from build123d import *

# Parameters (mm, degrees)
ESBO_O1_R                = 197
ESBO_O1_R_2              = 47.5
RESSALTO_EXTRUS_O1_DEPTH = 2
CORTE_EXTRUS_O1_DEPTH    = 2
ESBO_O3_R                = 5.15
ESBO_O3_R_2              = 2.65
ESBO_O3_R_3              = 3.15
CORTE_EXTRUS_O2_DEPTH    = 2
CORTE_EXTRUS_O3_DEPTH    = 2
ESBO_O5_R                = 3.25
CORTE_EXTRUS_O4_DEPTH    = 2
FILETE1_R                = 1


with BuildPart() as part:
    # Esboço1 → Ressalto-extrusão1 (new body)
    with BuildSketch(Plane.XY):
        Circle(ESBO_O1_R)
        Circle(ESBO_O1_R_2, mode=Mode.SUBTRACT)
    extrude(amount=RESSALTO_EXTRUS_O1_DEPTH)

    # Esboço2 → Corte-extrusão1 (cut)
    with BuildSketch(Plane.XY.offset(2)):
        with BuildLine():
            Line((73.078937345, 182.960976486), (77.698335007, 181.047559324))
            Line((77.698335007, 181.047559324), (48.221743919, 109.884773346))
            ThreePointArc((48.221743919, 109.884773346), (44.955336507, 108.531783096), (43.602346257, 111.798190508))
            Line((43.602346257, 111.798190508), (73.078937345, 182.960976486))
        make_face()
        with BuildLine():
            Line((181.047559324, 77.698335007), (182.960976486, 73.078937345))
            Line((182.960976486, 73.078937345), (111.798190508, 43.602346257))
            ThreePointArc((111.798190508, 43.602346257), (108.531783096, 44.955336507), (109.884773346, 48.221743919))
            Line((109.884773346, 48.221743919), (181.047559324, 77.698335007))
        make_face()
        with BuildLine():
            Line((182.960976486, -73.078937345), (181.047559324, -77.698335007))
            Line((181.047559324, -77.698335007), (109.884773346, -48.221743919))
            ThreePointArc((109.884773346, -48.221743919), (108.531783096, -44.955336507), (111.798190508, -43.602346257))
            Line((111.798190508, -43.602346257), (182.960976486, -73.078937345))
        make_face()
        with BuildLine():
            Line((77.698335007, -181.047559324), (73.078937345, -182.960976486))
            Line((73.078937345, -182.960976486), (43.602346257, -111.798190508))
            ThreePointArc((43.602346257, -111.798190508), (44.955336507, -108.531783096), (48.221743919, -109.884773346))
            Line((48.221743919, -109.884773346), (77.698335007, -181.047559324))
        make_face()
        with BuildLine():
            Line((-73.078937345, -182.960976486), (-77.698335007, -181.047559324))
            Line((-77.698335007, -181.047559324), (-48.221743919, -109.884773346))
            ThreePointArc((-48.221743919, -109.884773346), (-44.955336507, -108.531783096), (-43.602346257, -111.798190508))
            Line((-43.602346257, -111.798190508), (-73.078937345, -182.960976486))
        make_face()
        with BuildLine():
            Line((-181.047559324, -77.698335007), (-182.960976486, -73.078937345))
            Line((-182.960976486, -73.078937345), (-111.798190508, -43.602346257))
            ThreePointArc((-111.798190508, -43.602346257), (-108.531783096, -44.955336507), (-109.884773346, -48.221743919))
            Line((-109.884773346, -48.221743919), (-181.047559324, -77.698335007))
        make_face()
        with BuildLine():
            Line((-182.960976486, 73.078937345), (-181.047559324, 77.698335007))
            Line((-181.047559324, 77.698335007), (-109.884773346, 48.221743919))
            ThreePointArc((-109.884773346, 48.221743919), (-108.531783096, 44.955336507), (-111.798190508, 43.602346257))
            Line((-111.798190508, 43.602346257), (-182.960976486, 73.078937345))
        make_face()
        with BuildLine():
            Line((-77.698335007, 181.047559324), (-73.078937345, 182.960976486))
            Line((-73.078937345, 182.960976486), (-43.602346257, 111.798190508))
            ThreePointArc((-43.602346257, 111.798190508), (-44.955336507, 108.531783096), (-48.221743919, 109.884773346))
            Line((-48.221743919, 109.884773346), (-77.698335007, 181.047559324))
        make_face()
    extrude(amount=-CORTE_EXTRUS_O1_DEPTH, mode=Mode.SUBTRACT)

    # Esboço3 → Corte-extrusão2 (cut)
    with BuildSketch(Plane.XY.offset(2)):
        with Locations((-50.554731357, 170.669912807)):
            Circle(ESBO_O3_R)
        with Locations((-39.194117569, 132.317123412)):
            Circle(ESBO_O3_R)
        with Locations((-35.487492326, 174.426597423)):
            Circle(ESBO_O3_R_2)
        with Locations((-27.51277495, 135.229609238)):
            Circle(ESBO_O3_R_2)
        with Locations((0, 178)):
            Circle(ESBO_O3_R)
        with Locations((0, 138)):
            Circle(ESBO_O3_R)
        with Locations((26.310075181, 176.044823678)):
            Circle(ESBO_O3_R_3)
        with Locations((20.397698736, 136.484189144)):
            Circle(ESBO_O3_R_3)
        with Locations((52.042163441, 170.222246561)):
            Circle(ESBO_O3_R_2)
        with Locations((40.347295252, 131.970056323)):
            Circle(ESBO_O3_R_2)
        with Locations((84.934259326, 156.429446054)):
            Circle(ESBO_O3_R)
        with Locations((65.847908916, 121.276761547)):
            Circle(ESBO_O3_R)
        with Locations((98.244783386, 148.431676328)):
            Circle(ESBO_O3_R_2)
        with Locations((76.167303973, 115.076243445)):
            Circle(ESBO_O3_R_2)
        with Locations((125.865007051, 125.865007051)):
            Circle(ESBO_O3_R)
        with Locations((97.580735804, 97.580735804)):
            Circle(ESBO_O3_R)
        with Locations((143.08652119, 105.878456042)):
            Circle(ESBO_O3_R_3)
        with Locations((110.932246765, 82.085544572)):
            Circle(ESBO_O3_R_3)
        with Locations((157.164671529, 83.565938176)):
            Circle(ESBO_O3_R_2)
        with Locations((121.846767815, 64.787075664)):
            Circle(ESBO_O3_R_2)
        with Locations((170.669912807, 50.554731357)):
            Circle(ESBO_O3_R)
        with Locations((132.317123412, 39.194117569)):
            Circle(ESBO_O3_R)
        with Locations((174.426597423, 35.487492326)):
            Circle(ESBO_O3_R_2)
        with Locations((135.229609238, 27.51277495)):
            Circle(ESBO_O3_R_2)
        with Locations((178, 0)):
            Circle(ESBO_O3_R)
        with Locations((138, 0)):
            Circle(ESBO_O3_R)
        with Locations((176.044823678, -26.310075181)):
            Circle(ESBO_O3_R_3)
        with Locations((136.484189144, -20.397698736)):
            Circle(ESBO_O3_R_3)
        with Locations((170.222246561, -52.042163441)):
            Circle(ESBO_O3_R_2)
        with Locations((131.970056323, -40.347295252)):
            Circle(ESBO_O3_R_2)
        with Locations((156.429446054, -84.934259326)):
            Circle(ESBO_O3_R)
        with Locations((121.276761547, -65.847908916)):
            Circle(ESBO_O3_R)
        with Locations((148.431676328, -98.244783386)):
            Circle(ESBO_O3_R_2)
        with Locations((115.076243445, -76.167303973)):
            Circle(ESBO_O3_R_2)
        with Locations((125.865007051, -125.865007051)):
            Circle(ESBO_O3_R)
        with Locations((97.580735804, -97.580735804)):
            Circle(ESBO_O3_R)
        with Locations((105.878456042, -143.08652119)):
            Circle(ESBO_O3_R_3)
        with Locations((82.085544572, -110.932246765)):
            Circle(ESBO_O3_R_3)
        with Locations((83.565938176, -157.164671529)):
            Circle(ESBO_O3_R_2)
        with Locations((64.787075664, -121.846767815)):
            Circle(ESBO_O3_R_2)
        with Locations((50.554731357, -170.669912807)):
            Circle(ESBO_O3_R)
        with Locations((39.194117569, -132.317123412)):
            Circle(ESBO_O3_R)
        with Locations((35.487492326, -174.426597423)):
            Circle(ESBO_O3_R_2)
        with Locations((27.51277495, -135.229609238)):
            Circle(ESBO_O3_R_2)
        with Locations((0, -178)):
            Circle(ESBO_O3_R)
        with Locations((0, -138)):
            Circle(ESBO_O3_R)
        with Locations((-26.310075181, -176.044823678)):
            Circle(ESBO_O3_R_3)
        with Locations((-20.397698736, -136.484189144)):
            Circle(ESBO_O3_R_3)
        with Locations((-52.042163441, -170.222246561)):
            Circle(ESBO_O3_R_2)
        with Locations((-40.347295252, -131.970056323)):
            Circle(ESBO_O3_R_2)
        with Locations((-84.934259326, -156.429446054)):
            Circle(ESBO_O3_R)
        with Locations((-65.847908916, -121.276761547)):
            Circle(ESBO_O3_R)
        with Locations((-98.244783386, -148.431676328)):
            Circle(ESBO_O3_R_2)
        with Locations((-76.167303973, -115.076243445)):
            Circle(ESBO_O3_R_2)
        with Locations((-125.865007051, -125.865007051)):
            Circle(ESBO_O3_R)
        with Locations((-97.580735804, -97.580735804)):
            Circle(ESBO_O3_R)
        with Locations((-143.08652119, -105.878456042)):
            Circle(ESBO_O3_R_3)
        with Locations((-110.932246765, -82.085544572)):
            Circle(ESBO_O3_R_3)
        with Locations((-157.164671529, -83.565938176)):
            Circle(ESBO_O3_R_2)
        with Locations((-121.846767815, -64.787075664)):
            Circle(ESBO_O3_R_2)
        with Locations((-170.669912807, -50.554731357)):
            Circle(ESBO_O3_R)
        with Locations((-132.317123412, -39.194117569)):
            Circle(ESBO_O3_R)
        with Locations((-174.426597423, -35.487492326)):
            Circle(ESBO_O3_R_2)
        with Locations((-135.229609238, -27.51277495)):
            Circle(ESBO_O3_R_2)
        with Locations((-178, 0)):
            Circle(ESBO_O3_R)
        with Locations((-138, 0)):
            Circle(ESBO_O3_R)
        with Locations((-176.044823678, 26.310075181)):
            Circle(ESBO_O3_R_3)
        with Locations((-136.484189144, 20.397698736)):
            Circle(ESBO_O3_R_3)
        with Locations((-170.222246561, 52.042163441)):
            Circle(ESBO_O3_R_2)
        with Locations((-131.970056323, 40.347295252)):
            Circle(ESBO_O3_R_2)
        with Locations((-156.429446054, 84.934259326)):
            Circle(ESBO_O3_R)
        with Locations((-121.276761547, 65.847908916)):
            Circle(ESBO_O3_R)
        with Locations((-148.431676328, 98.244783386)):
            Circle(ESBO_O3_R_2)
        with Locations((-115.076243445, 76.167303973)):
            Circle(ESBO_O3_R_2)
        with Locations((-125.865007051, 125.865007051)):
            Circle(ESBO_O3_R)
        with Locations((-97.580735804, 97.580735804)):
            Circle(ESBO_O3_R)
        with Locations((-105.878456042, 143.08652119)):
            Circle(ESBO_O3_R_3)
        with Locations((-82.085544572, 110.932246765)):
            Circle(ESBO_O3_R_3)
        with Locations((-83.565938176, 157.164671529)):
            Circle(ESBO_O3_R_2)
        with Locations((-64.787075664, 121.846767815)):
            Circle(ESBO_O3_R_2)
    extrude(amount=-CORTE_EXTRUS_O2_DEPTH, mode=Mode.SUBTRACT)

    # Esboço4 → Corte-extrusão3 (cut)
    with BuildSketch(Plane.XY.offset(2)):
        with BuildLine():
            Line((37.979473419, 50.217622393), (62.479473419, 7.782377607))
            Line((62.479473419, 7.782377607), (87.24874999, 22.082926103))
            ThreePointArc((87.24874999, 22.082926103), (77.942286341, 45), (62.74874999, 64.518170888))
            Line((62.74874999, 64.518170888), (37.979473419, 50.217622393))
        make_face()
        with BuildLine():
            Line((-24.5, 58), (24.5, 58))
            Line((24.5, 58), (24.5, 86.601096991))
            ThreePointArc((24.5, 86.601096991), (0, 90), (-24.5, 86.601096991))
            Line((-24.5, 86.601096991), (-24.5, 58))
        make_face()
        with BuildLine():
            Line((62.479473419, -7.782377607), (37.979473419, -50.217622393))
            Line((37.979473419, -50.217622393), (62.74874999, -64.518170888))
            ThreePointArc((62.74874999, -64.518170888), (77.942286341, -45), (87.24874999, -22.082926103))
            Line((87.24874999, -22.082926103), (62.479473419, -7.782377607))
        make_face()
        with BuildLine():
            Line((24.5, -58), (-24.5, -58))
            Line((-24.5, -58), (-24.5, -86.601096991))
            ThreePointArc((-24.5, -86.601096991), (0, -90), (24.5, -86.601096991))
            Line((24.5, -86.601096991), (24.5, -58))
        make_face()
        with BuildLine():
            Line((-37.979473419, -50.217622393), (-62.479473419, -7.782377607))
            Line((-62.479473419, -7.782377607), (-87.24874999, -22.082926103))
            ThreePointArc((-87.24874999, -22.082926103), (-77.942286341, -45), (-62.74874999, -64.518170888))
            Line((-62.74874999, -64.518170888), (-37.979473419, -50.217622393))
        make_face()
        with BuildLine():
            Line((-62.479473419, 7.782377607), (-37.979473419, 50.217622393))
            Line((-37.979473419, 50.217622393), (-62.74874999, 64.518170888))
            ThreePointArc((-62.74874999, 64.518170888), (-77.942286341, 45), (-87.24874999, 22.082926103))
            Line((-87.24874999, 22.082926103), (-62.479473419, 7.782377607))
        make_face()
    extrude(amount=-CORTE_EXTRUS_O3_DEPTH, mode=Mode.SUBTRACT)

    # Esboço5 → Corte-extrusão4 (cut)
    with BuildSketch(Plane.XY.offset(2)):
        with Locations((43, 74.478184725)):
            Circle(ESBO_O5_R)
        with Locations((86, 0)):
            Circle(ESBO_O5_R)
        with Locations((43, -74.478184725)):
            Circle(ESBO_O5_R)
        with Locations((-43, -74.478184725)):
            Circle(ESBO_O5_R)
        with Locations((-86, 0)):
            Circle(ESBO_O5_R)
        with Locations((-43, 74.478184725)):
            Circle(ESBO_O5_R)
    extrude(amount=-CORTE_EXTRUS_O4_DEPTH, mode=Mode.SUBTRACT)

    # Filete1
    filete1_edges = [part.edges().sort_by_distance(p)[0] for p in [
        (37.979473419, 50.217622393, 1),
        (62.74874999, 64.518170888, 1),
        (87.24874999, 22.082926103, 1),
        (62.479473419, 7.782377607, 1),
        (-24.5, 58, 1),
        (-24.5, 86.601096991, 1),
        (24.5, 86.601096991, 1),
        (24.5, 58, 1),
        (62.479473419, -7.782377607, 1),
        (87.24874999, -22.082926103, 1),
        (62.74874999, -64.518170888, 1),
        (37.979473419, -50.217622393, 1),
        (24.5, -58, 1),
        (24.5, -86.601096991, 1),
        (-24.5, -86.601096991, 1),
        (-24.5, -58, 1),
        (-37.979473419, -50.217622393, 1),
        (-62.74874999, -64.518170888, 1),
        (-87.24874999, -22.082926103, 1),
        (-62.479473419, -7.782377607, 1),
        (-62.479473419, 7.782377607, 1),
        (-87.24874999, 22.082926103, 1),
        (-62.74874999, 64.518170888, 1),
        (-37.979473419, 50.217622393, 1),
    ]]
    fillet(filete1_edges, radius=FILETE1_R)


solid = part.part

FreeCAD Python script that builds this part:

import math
import FreeCAD as App
import Part
import Sketcher

V = App.Vector
Q = App.Units.Quantity


def edges_at(feature, points):
    """Names of the edges that pass closest to the given points."""
    edges = feature.Shape.Edges
    near = lambda p: min(range(len(edges)), key=lambda i: edges[i].distToShape(Part.Vertex(*p))[0])
    return sorted({f"Edge{near(p) + 1}" for p in points})

doc = App.newDocument("Part")
body = doc.addObject("PartDesign::Body", "Body")

sketch1 = doc.addObject("Sketcher::SketchObject", "Sketch")
body.addObject(sketch1)
sketch1.AttachmentSupport = (doc.XY_Plane, [""])
sketch1.MapMode = "FlatFace"
sketch1.addGeometry([
    Part.Circle(V(0, 0, 0), V(0, 0, 1), 197),
    Part.Circle(V(0, 0, 0), V(0, 0, 1), 47.5),
], False)
sketch1.addConstraint([
    Sketcher.Constraint("Coincident", 0, 3, -1, 1),
    Sketcher.Constraint("Coincident", 1, 3, -1, 1),
    Sketcher.Constraint("Diameter", 0, 394.0),
    Sketcher.Constraint("Diameter", 1, 95.0),
])
pad1 = doc.addObject("PartDesign::Pad", "Pad")
body.addObject(pad1)
pad1.Profile = sketch1
pad1.Length = 2

sketch2 = doc.addObject("Sketcher::SketchObject", "Sketch001")
body.addObject(sketch2)
sketch2.AttachmentSupport = (doc.XY_Plane, [""])
sketch2.MapMode = "FlatFace"
sketch2.AttachmentOffset = App.Placement(V(0, 0, 2), App.Rotation())
sketch2.addGeometry([
    Part.LineSegment(V(77.698335, 181.047559, 0), V(73.078937, 182.960976, 0)),
    Part.LineSegment(V(73.078937, 182.960976, 0), V(43.602346, 111.798191, 0)),
    Part.ArcOfCircle(Part.Circle(V(45.912045, 110.841482, 0), V(0, 0, 1), 2.5), math.radians(157.5), math.radians(337.5)),
    Part.LineSegment(V(48.221744, 109.884773, 0), V(77.698335, 181.047559, 0)),
    Part.LineSegment(V(182.960976, 73.078937, 0), V(181.047559, 77.698335, 0)),
    Part.LineSegment(V(181.047559, 77.698335, 0), V(109.884773, 48.221744, 0)),
    Part.ArcOfCircle(Part.Circle(V(110.841482, 45.912045, 0), V(0, 0, 1), 2.5), math.radians(112.5), math.radians(292.5)),
    Part.LineSegment(V(111.798191, 43.602346, 0), V(182.960976, 73.078937, 0)),
    Part.LineSegment(V(181.047559, -77.698335, 0), V(182.960976, -73.078937, 0)),
    Part.LineSegment(V(182.960976, -73.078937, 0), V(111.798191, -43.602346, 0)),
    Part.ArcOfCircle(Part.Circle(V(110.841482, -45.912045, 0), V(0, 0, 1), 2.5), math.radians(67.5), math.radians(247.5)),
    Part.LineSegment(V(109.884773, -48.221744, 0), V(181.047559, -77.698335, 0)),
    Part.LineSegment(V(73.078937, -182.960976, 0), V(77.698335, -181.047559, 0)),
    Part.LineSegment(V(77.698335, -181.047559, 0), V(48.221744, -109.884773, 0)),
    Part.ArcOfCircle(Part.Circle(V(45.912045, -110.841482, 0), V(0, 0, 1), 2.5), math.radians(22.5), math.radians(202.5)),
    Part.LineSegment(V(43.602346, -111.798191, 0), V(73.078937, -182.960976, 0)),
    Part.LineSegment(V(-77.698335, -181.047559, 0), V(-73.078937, -182.960976, 0)),
    Part.LineSegment(V(-73.078937, -182.960976, 0), V(-43.602346, -111.798191, 0)),
    Part.ArcOfCircle(Part.Circle(V(-45.912045, -110.841482, 0), V(0, 0, 1), 2.5), math.radians(-22.5), math.radians(157.5)),
    Part.LineSegment(V(-48.221744, -109.884773, 0), V(-77.698335, -181.047559, 0)),
    Part.LineSegment(V(-182.960976, -73.078937, 0), V(-181.047559, -77.698335, 0)),
    Part.LineSegment(V(-181.047559, -77.698335, 0), V(-109.884773, -48.221744, 0)),
    Part.ArcOfCircle(Part.Circle(V(-110.841482, -45.912045, 0), V(0, 0, 1), 2.5), math.radians(-67.5), math.radians(112.5)),
    Part.LineSegment(V(-111.798191, -43.602346, 0), V(-182.960976, -73.078937, 0)),
    Part.LineSegment(V(-181.047559, 77.698335, 0), V(-182.960976, 73.078937, 0)),
    Part.LineSegment(V(-182.960976, 73.078937, 0), V(-111.798191, 43.602346, 0)),
    Part.ArcOfCircle(Part.Circle(V(-110.841482, 45.912045, 0), V(0, 0, 1), 2.5), math.radians(-112.5), math.radians(67.5)),
    Part.LineSegment(V(-109.884773, 48.221744, 0), V(-181.047559, 77.698335, 0)),
    Part.LineSegment(V(-73.078937, 182.960976, 0), V(-77.698335, 181.047559, 0)),
    Part.LineSegment(V(-77.698335, 181.047559, 0), V(-48.221744, 109.884773, 0)),
    Part.ArcOfCircle(Part.Circle(V(-45.912045, 110.841482, 0), V(0, 0, 1), 2.5), math.radians(-157.5), math.radians(22.5)),
    Part.LineSegment(V(-43.602346, 111.798191, 0), V(-73.078937, 182.960976, 0)),
], False)
sketch2.addConstraint([
    Sketcher.Constraint("Coincident", 0, 2, 1, 1),
    Sketcher.Constraint("Tangent", 1, 2, 2, 1),
    Sketcher.Constraint("Tangent", 2, 2, 3, 1),
    Sketcher.Constraint("Coincident", 3, 2, 0, 1),
    Sketcher.Constraint("Coincident", 4, 2, 5, 1),
    Sketcher.Constraint("Tangent", 5, 2, 6, 1),
    Sketcher.Constraint("Tangent", 6, 2, 7, 1),
    Sketcher.Constraint("Coincident", 7, 2, 4, 1),
    Sketcher.Constraint("Coincident", 8, 2, 9, 1),
    Sketcher.Constraint("Tangent", 9, 2, 10, 1),
    Sketcher.Constraint("Tangent", 10, 2, 11, 1),
    Sketcher.Constraint("Coincident", 11, 2, 8, 1),
    Sketcher.Constraint("Coincident", 12, 2, 13, 1),
    Sketcher.Constraint("Tangent", 13, 2, 14, 1),
    Sketcher.Constraint("Tangent", 14, 2, 15, 1),
    Sketcher.Constraint("Coincident", 15, 2, 12, 1),
    Sketcher.Constraint("Coincident", 16, 2, 17, 1),
    Sketcher.Constraint("Tangent", 17, 2, 18, 1),
    Sketcher.Constraint("Tangent", 18, 2, 19, 1),
    Sketcher.Constraint("Coincident", 19, 2, 16, 1),
    Sketcher.Constraint("Coincident", 20, 2, 21, 1),
    Sketcher.Constraint("Tangent", 21, 2, 22, 1),
    Sketcher.Constraint("Tangent", 22, 2, 23, 1),
    Sketcher.Constraint("Coincident", 23, 2, 20, 1),
    Sketcher.Constraint("Coincident", 24, 2, 25, 1),
    Sketcher.Constraint("Tangent", 25, 2, 26, 1),
    Sketcher.Constraint("Tangent", 26, 2, 27, 1),
    Sketcher.Constraint("Coincident", 27, 2, 24, 1),
    Sketcher.Constraint("Coincident", 28, 2, 29, 1),
    Sketcher.Constraint("Tangent", 29, 2, 30, 1),
    Sketcher.Constraint("Tangent", 30, 2, 31, 1),
    Sketcher.Constraint("Coincident", 31, 2, 28, 1),
    Sketcher.Constraint("Equal", 2, 6),
    Sketcher.Constraint("Equal", 6, 10),
    Sketcher.Constraint("Equal", 10, 14),
    Sketcher.Constraint("Equal", 14, 18),
    Sketcher.Constraint("Equal", 18, 22),
    Sketcher.Constraint("Equal", 22, 26),
    Sketcher.Constraint("Equal", 26, 30),
    Sketcher.Constraint("Symmetric", 2, 3, 18, 3, -1, 1),
    Sketcher.Constraint("Symmetric", 6, 3, 22, 3, -1, 1),
    Sketcher.Constraint("Symmetric", 10, 3, 26, 3, -1, 1),
    Sketcher.Constraint("Symmetric", 14, 3, 30, 3, -1, 1),
    Sketcher.Constraint("Symmetric", 0, 2, 16, 2, -1, 1),
    Sketcher.Constraint("Symmetric", 3, 2, 19, 2, -1, 1),
    Sketcher.Constraint("Symmetric", 4, 2, 20, 2, -1, 1),
    Sketcher.Constraint("Symmetric", 7, 2, 23, 2, -1, 1),
    Sketcher.Constraint("Symmetric", 8, 2, 24, 2, -1, 1),
    Sketcher.Constraint("Symmetric", 11, 2, 27, 2, -1, 1),
    Sketcher.Constraint("Symmetric", 12, 2, 28, 2, -1, 1),
    Sketcher.Constraint("Symmetric", 15, 2, 31, 2, -1, 1),
    Sketcher.Constraint("Symmetric", 14, 3, 18, 3, -2),
    Sketcher.Constraint("Symmetric", 10, 3, 22, 3, -2),
    Sketcher.Constraint("Symmetric", 15, 2, 16, 2, -2),
    Sketcher.Constraint("Symmetric", 12, 2, 19, 2, -2),
    Sketcher.Constraint("Symmetric", 11, 2, 20, 2, -2),
    Sketcher.Constraint("Symmetric", 8, 2, 23, 2, -2),
    Sketcher.Constraint("Perpendicular", 0, 1),
    Sketcher.Constraint("Parallel", 1, 3),
    Sketcher.Constraint("Perpendicular", 4, 5),
    Sketcher.Constraint("Parallel", 5, 7),
    Sketcher.Constraint("Parallel", 3, 8),
    Sketcher.Constraint("Equal", 3, 5),
    Sketcher.Constraint("Radius", 2, 2.5),
    Sketcher.Constraint("Angle", 0, Q("157.5 deg")),
    Sketcher.Constraint("DistanceY", -1, 1, 2, 3, 110.841482),
    Sketcher.Constraint("DistanceX", -1, 1, 6, 3, 110.841482),
    Sketcher.Constraint("DistanceY", -1, 1, 3, 2, 181.047559),
    Sketcher.Constraint("DistanceY", 10, 3, 6, 3, 91.82409),
    Sketcher.Constraint("DistanceX", 18, 3, 14, 3, 91.82409),
])
pocket1 = doc.addObject("PartDesign::Pocket", "Pocket")
body.addObject(pocket1)
pocket1.Profile = sketch2
pocket1.Length = 2

sketch3 = doc.addObject("Sketcher::SketchObject", "Sketch002")
body.addObject(sketch3)
sketch3.AttachmentSupport = (doc.XY_Plane, [""])
sketch3.MapMode = "FlatFace"
sketch3.AttachmentOffset = App.Placement(V(0, 0, 2), App.Rotation())
sketch3.addGeometry([
    Part.Circle(V(-50.554731, 170.669913, 0), V(0, 0, 1), 5.15),
    Part.Circle(V(-39.194118, 132.317123, 0), V(0, 0, 1), 5.15),
    Part.Circle(V(-35.487492, 174.426597, 0), V(0, 0, 1), 2.65),
    Part.Circle(V(-27.512775, 135.229609, 0), V(0, 0, 1), 2.65),
    Part.Circle(V(0, 178, 0), V(0, 0, 1), 5.15),
    Part.Circle(V(0, 138, 0), V(0, 0, 1), 5.15),
    Part.Circle(V(26.310075, 176.044824, 0), V(0, 0, 1), 3.15),
    Part.Circle(V(20.397699, 136.484189, 0), V(0, 0, 1), 3.15),
    Part.Circle(V(52.042163, 170.222247, 0), V(0, 0, 1), 2.65),
    Part.Circle(V(40.347295, 131.970056, 0), V(0, 0, 1), 2.65),
    Part.Circle(V(84.934259, 156.429446, 0), V(0, 0, 1), 5.15),
    Part.Circle(V(65.847909, 121.276762, 0), V(0, 0, 1), 5.15),
    Part.Circle(V(98.244783, 148.431676, 0), V(0, 0, 1), 2.65),
    Part.Circle(V(76.167304, 115.076243, 0), V(0, 0, 1), 2.65),
    Part.Circle(V(125.865007, 125.865007, 0), V(0, 0, 1), 5.15),
    Part.Circle(V(97.580736, 97.580736, 0), V(0, 0, 1), 5.15),
    Part.Circle(V(143.086521, 105.878456, 0), V(0, 0, 1), 3.15),
    Part.Circle(V(110.932247, 82.085545, 0), V(0, 0, 1), 3.15),
    Part.Circle(V(157.164672, 83.565938, 0), V(0, 0, 1), 2.65),
    Part.Circle(V(121.846768, 64.787076, 0), V(0, 0, 1), 2.65),
    Part.Circle(V(170.669913, 50.554731, 0), V(0, 0, 1), 5.15),
    Part.Circle(V(132.317123, 39.194118, 0), V(0, 0, 1), 5.15),
    Part.Circle(V(174.426597, 35.487492, 0), V(0, 0, 1), 2.65),
    Part.Circle(V(135.229609, 27.512775, 0), V(0, 0, 1), 2.65),
    Part.Circle(V(178, 0, 0), V(0, 0, 1), 5.15),
    Part.Circle(V(138, 0, 0), V(0, 0, 1), 5.15),
    Part.Circle(V(176.044824, -26.310075, 0), V(0, 0, 1), 3.15),
    Part.Circle(V(136.484189, -20.397699, 0), V(0, 0, 1), 3.15),
    Part.Circle(V(170.222247, -52.042163, 0), V(0, 0, 1), 2.65),
    Part.Circle(V(131.970056, -40.347295, 0), V(0, 0, 1), 2.65),
    Part.Circle(V(156.429446, -84.934259, 0), V(0, 0, 1), 5.15),
    Part.Circle(V(121.276762, -65.847909, 0), V(0, 0, 1), 5.15),
    Part.Circle(V(148.431676, -98.244783, 0), V(0, 0, 1), 2.65),
    Part.Circle(V(115.076243, -76.167304, 0), V(0, 0, 1), 2.65),
    Part.Circle(V(125.865007, -125.865007, 0), V(0, 0, 1), 5.15),
    Part.Circle(V(97.580736, -97.580736, 0), V(0, 0, 1), 5.15),
    Part.Circle(V(105.878456, -143.086521, 0), V(0, 0, 1), 3.15),
    Part.Circle(V(82.085545, -110.932247, 0), V(0, 0, 1), 3.15),
    Part.Circle(V(83.565938, -157.164672, 0), V(0, 0, 1), 2.65),
    Part.Circle(V(64.787076, -121.846768, 0), V(0, 0, 1), 2.65),
    Part.Circle(V(50.554731, -170.669913, 0), V(0, 0, 1), 5.15),
    Part.Circle(V(39.194118, -132.317123, 0), V(0, 0, 1), 5.15),
    Part.Circle(V(35.487492, -174.426597, 0), V(0, 0, 1), 2.65),
    Part.Circle(V(27.512775, -135.229609, 0), V(0, 0, 1), 2.65),
    Part.Circle(V(0, -178, 0), V(0, 0, 1), 5.15),
    Part.Circle(V(0, -138, 0), V(0, 0, 1), 5.15),
    Part.Circle(V(-26.310075, -176.044824, 0), V(0, 0, 1), 3.15),
    Part.Circle(V(-20.397699, -136.484189, 0), V(0, 0, 1), 3.15),
    Part.Circle(V(-52.042163, -170.222247, 0), V(0, 0, 1), 2.65),
    Part.Circle(V(-40.347295, -131.970056, 0), V(0, 0, 1), 2.65),
    Part.Circle(V(-84.934259, -156.429446, 0), V(0, 0, 1), 5.15),
    Part.Circle(V(-65.847909, -121.276762, 0), V(0, 0, 1), 5.15),
    Part.Circle(V(-98.244783, -148.431676, 0), V(0, 0, 1), 2.65),
    Part.Circle(V(-76.167304, -115.076243, 0), V(0, 0, 1), 2.65),
    Part.Circle(V(-125.865007, -125.865007, 0), V(0, 0, 1), 5.15),
    Part.Circle(V(-97.580736, -97.580736, 0), V(0, 0, 1), 5.15),
    Part.Circle(V(-143.086521, -105.878456, 0), V(0, 0, 1), 3.15),
    Part.Circle(V(-110.932247, -82.085545, 0), V(0, 0, 1), 3.15),
    Part.Circle(V(-157.164672, -83.565938, 0), V(0, 0, 1), 2.65),
    Part.Circle(V(-121.846768, -64.787076, 0), V(0, 0, 1), 2.65),
    Part.Circle(V(-170.669913, -50.554731, 0), V(0, 0, 1), 5.15),
    Part.Circle(V(-132.317123, -39.194118, 0), V(0, 0, 1), 5.15),
    Part.Circle(V(-174.426597, -35.487492, 0), V(0, 0, 1), 2.65),
    Part.Circle(V(-135.229609, -27.512775, 0), V(0, 0, 1), 2.65),
    Part.Circle(V(-178, 0, 0), V(0, 0, 1), 5.15),
    Part.Circle(V(-138, 0, 0), V(0, 0, 1), 5.15),
    Part.Circle(V(-176.044824, 26.310075, 0), V(0, 0, 1), 3.15),
    Part.Circle(V(-136.484189, 20.397699, 0), V(0, 0, 1), 3.15),
    Part.Circle(V(-170.222247, 52.042163, 0), V(0, 0, 1), 2.65),
    Part.Circle(V(-131.970056, 40.347295, 0), V(0, 0, 1), 2.65),
    Part.Circle(V(-156.429446, 84.934259, 0), V(0, 0, 1), 5.15),
    Part.Circle(V(-121.276762, 65.847909, 0), V(0, 0, 1), 5.15),
    Part.Circle(V(-148.431676, 98.244783, 0), V(0, 0, 1), 2.65),
    Part.Circle(V(-115.076243, 76.167304, 0), V(0, 0, 1), 2.65),
    Part.Circle(V(-125.865007, 125.865007, 0), V(0, 0, 1), 5.15),
    Part.Circle(V(-97.580736, 97.580736, 0), V(0, 0, 1), 5.15),
    Part.Circle(V(-105.878456, 143.086521, 0), V(0, 0, 1), 3.15),
    Part.Circle(V(-82.085545, 110.932247, 0), V(0, 0, 1), 3.15),
    Part.Circle(V(-83.565938, 157.164672, 0), V(0, 0, 1), 2.65),
    Part.Circle(V(-64.787076, 121.846768, 0), V(0, 0, 1), 2.65),
], False)
sketch3.addConstraint([
    Sketcher.Constraint("Equal", 0, 1),
    Sketcher.Constraint("Equal", 2, 3),
    Sketcher.Constraint("Equal", 1, 4),
    Sketcher.Constraint("Equal", 4, 5),
    Sketcher.Constraint("Equal", 6, 7),
    Sketcher.Constraint("Equal", 3, 8),
    Sketcher.Constraint("Equal", 8, 9),
    Sketcher.Constraint("Equal", 5, 10),
    Sketcher.Constraint("Equal", 10, 11),
    Sketcher.Constraint("Equal", 9, 12),
    Sketcher.Constraint("Equal", 12, 13),
    Sketcher.Constraint("Equal", 11, 14),
    Sketcher.Constraint("Equal", 14, 15),
    Sketcher.Constraint("Equal", 7, 16),
    Sketcher.Constraint("Equal", 16, 17),
    Sketcher.Constraint("Equal", 13, 18),
    Sketcher.Constraint("Equal", 18, 19),
    Sketcher.Constraint("Equal", 15, 20),
    Sketcher.Constraint("Equal", 20, 21),
    Sketcher.Constraint("Equal", 19, 22),
    Sketcher.Constraint("Equal", 22, 23),
    Sketcher.Constraint("Equal", 21, 24),
    Sketcher.Constraint("Equal", 24, 25),
    Sketcher.Constraint("Equal", 17, 26),
    Sketcher.Constraint("Equal", 26, 27),
    Sketcher.Constraint("Equal", 23, 28),
    Sketcher.Constraint("Equal", 28, 29),
    Sketcher.Constraint("Equal", 25, 30),
    Sketcher.Constraint("Equal", 30, 31),
    Sketcher.Constraint("Equal", 29, 32),
    Sketcher.Constraint("Equal", 32, 33),
    Sketcher.Constraint("Equal", 31, 34),
    Sketcher.Constraint("Equal", 34, 35),
    Sketcher.Constraint("Equal", 27, 36),
    Sketcher.Constraint("Equal", 36, 37),
    Sketcher.Constraint("Equal", 33, 38),
    Sketcher.Constraint("Equal", 38, 39),
    Sketcher.Constraint("Equal", 35, 40),
    Sketcher.Constraint("Equal", 40, 41),
    Sketcher.Constraint("Equal", 39, 42),
    Sketcher.Constraint("Equal", 42, 43),
    Sketcher.Constraint("Equal", 41, 44),
    Sketcher.Constraint("Equal", 44, 45),
    Sketcher.Constraint("Equal", 37, 46),
    Sketcher.Constraint("Equal", 46, 47),
    Sketcher.Constraint("Equal", 43, 48),
    Sketcher.Constraint("Equal", 48, 49),
    Sketcher.Constraint("Equal", 45, 50),
    Sketcher.Constraint("Equal", 50, 51),
    Sketcher.Constraint("Equal", 49, 52),
    Sketcher.Constraint("Equal", 52, 53),
    Sketcher.Constraint("Equal", 51, 54),
    Sketcher.Constraint("Equal", 54, 55),
    Sketcher.Constraint("Equal", 47, 56),
    Sketcher.Constraint("Equal", 56, 57),
    Sketcher.Constraint("Equal", 53, 58),
    Sketcher.Constraint("Equal", 58, 59),
    Sketcher.Constraint("Equal", 55, 60),
    Sketcher.Constraint("Equal", 60, 61),
    Sketcher.Constraint("Equal", 59, 62),
    Sketcher.Constraint("Equal", 62, 63),
    Sketcher.Constraint("Equal", 61, 64),
    Sketcher.Constraint("Equal", 64, 65),
    Sketcher.Constraint("Equal", 57, 66),
    Sketcher.Constraint("Equal", 66, 67),
    Sketcher.Constraint("Equal", 63, 68),
    Sketcher.Constraint("Equal", 68, 69),
    Sketcher.Constraint("Equal", 65, 70),
    Sketcher.Constraint("Equal", 70, 71),
    Sketcher.Constraint("Equal", 69, 72),
    Sketcher.Constraint("Equal", 72, 73),
    Sketcher.Constraint("Equal", 71, 74),
    Sketcher.Constraint("Equal", 74, 75),
    Sketcher.Constraint("Equal", 67, 76),
    Sketcher.Constraint("Equal", 76, 77),
    Sketcher.Constraint("Equal", 73, 78),
    Sketcher.Constraint("Equal", 78, 79),
    Sketcher.Constraint("Symmetric", 0, 3, 40, 3, -1, 1),
    Sketcher.Constraint("Symmetric", 1, 3, 41, 3, -1, 1),
    Sketcher.Constraint("Symmetric", 2, 3, 42, 3, -1, 1),
    Sketcher.Constraint("Symmetric", 3, 3, 43, 3, -1, 1),
    Sketcher.Constraint("Symmetric", 4, 3, 44, 3, -1, 1),
    Sketcher.Constraint("Symmetric", 5, 3, 45, 3, -1, 1),
    Sketcher.Constraint("Symmetric", 6, 3, 46, 3, -1, 1),
    Sketcher.Constraint("Symmetric", 7, 3, 47, 3, -1, 1),
    Sketcher.Constraint("Symmetric", 8, 3, 48, 3, -1, 1),
    Sketcher.Constraint("Symmetric", 9, 3, 49, 3, -1, 1),
    Sketcher.Constraint("Symmetric", 10, 3, 50, 3, -1, 1),
    Sketcher.Constraint("Symmetric", 11, 3, 51, 3, -1, 1),
    Sketcher.Constraint("Symmetric", 12, 3, 52, 3, -1, 1),
    Sketcher.Constraint("Symmetric", 13, 3, 53, 3, -1, 1),
    Sketcher.Constraint("Symmetric", 14, 3, 54, 3, -1, 1),
    Sketcher.Constraint("Symmetric", 15, 3, 55, 3, -1, 1),
    Sketcher.Constraint("Symmetric", 16, 3, 56, 3, -1, 1),
    Sketcher.Constraint("Symmetric", 17, 3, 57, 3, -1, 1),
    Sketcher.Constraint("Symmetric", 18, 3, 58, 3, -1, 1),
    Sketcher.Constraint("Symmetric", 19, 3, 59, 3, -1, 1),
    Sketcher.Constraint("Symmetric", 20, 3, 60, 3, -1, 1),
    Sketcher.Constraint("Symmetric", 21, 3, 61, 3, -1, 1),
    Sketcher.Constraint("Symmetric", 22, 3, 62, 3, -1, 1),
    Sketcher.Constraint("Symmetric", 23, 3, 63, 3, -1, 1),
    Sketcher.Constraint("Symmetric", 24, 3, 64, 3, -1, 1),
    Sketcher.Constraint("Symmetric", 25, 3, 65, 3, -1, 1),
    Sketcher.Constraint("Symmetric", 26, 3, 66, 3, -1, 1),
    Sketcher.Constraint("Symmetric", 27, 3, 67, 3, -1, 1),
    Sketcher.Constraint("Symmetric", 28, 3, 68, 3, -1, 1),
    Sketcher.Constraint("Symmetric", 29, 3, 69, 3, -1, 1),
    Sketcher.Constraint("Symmetric", 30, 3, 70, 3, -1, 1),
    Sketcher.Constraint("Symmetric", 31, 3, 71, 3, -1, 1),
    Sketcher.Constraint("Symmetric", 32, 3, 72, 3, -1, 1),
    Sketcher.Constraint("Symmetric", 33, 3, 73, 3, -1, 1),
    Sketcher.Constraint("Symmetric", 34, 3, 74, 3, -1, 1),
    Sketcher.Constraint("Symmetric", 35, 3, 75, 3, -1, 1),
    Sketcher.Constraint("Symmetric", 36, 3, 76, 3, -1, 1),
    Sketcher.Constraint("Symmetric", 37, 3, 77, 3, -1, 1),
    Sketcher.Constraint("Symmetric", 38, 3, 78, 3, -1, 1),
    Sketcher.Constraint("Symmetric", 39, 3, 79, 3, -1, 1),
    Sketcher.Constraint("Symmetric", 34, 3, 54, 3, -2),
    Sketcher.Constraint("Symmetric", 35, 3, 55, 3, -2),
    Sketcher.Constraint("PointOnObject", 4, 3, -2),
    Sketcher.Constraint("PointOnObject", 5, 3, -2),
    Sketcher.Constraint("PointOnObject", 24, 3, -1),
    Sketcher.Constraint("PointOnObject", 25, 3, -1),
    Sketcher.Constraint("Diameter", 0, 10.3),
    Sketcher.Constraint("Diameter", 2, 5.3),
    Sketcher.Constraint("Diameter", 6, 6.3),
    Sketcher.Constraint("DistanceY", -1, 1, 4, 3, 178.0),
    Sketcher.Constraint("DistanceY", -1, 1, 5, 3, 138.0),
    Sketcher.Constraint("DistanceX", -1, 1, 24, 3, 178.0),
    Sketcher.Constraint("DistanceX", -1, 1, 25, 3, 138.0),
    Sketcher.Constraint("DistanceX", -1, 1, 7, 3, 20.397699),
    Sketcher.Constraint("DistanceY", 27, 3, -1, 1, 20.397699),
    Sketcher.Constraint("DistanceX", 0, 3, -1, 1, 50.554731),
    Sketcher.Constraint("DistanceY", -1, 1, 3, 3, 135.229609),
    Sketcher.Constraint("DistanceY", -1, 1, 7, 3, 136.484189),
    Sketcher.Constraint("DistanceX", -1, 1, 10, 3, 84.934259),
    Sketcher.Constraint("DistanceX", -1, 1, 11, 3, 65.847909),
    Sketcher.Constraint("DistanceY", -1, 1, 11, 3, 121.276762),
    Sketcher.Constraint("DistanceX", -1, 1, 16, 3, 143.086521),
    Sketcher.Constraint("DistanceX", -1, 1, 18, 3, 157.164672),
    Sketcher.Constraint("DistanceY", -1, 1, 18, 3, 83.565938),
    Sketcher.Constraint("DistanceY", -1, 1, 20, 3, 50.554731),
    Sketcher.Constraint("DistanceX", -1, 1, 23, 3, 135.229609),
    Sketcher.Constraint("DistanceX", -1, 1, 27, 3, 136.484189),
    Sketcher.Constraint("DistanceY", 30, 3, -1, 1, 84.934259),
    Sketcher.Constraint("DistanceX", -1, 1, 31, 3, 121.276762),
    Sketcher.Constraint("DistanceY", 31, 3, -1, 1, 65.847909),
    Sketcher.Constraint("DistanceY", 36, 3, -1, 1, 143.086521),
    Sketcher.Constraint("DistanceX", -1, 1, 38, 3, 83.565938),
    Sketcher.Constraint("DistanceY", 38, 3, -1, 1, 157.164672),
    Sketcher.Constraint("DistanceY", -1, 1, 0, 3, 170.669913),
    Sketcher.Constraint("DistanceX", 1, 3, -1, 1, 39.194118),
    Sketcher.Constraint("DistanceY", -1, 1, 1, 3, 132.317123),
    Sketcher.Constraint("DistanceX", 2, 3, -1, 1, 35.487492),
    Sketcher.Constraint("DistanceY", -1, 1, 2, 3, 174.426597),
    Sketcher.Constraint("DistanceX", 3, 3, -1, 1, 27.512775),
    Sketcher.Constraint("DistanceX", -1, 1, 6, 3, 26.310075),
    Sketcher.Constraint("DistanceY", -1, 1, 6, 3, 176.044824),
    Sketcher.Constraint("DistanceX", -1, 1, 8, 3, 52.042163),
    Sketcher.Constraint("DistanceY", -1, 1, 8, 3, 170.222247),
    Sketcher.Constraint("DistanceX", -1, 1, 9, 3, 40.347295),
    Sketcher.Constraint("DistanceY", -1, 1, 9, 3, 131.970056),
    Sketcher.Constraint("DistanceY", -1, 1, 10, 3, 156.429446),
    Sketcher.Constraint("DistanceX", -1, 1, 12, 3, 98.244783),
    Sketcher.Constraint("DistanceY", -1, 1, 12, 3, 148.431676),
    Sketcher.Constraint("DistanceX", -1, 1, 13, 3, 76.167304),
    Sketcher.Constraint("DistanceY", -1, 1, 13, 3, 115.076243),
    Sketcher.Constraint("DistanceX", -1, 1, 14, 3, 125.865007),
    Sketcher.Constraint("DistanceY", -1, 1, 14, 3, 125.865007),
    Sketcher.Constraint("DistanceX", -1, 1, 15, 3, 97.580736),
    Sketcher.Constraint("DistanceY", -1, 1, 15, 3, 97.580736),
    Sketcher.Constraint("DistanceY", -1, 1, 16, 3, 105.878456),
    Sketcher.Constraint("DistanceX", -1, 1, 17, 3, 110.932247),
    Sketcher.Constraint("DistanceY", -1, 1, 17, 3, 82.085545),
    Sketcher.Constraint("DistanceX", -1, 1, 19, 3, 121.846768),
    Sketcher.Constraint("DistanceY", -1, 1, 19, 3, 64.787076),
    Sketcher.Constraint("DistanceX", -1, 1, 20, 3, 170.669913),
    Sketcher.Constraint("DistanceX", -1, 1, 21, 3, 132.317123),
    Sketcher.Constraint("DistanceY", -1, 1, 21, 3, 39.194118),
    Sketcher.Constraint("DistanceX", -1, 1, 22, 3, 174.426597),
    Sketcher.Constraint("DistanceY", -1, 1, 22, 3, 35.487492),
    Sketcher.Constraint("DistanceY", -1, 1, 23, 3, 27.512775),
    Sketcher.Constraint("DistanceX", -1, 1, 26, 3, 176.044824),
    Sketcher.Constraint("DistanceY", 26, 3, -1, 1, 26.310075),
    Sketcher.Constraint("DistanceX", -1, 1, 28, 3, 170.222247),
    Sketcher.Constraint("DistanceY", 28, 3, -1, 1, 52.042163),
    Sketcher.Constraint("DistanceX", -1, 1, 29, 3, 131.970056),
    Sketcher.Constraint("DistanceY", 29, 3, -1, 1, 40.347295),
    Sketcher.Constraint("DistanceX", -1, 1, 30, 3, 156.429446),
    Sketcher.Constraint("DistanceX", -1, 1, 32, 3, 148.431676),
    Sketcher.Constraint("DistanceY", 32, 3, -1, 1, 98.244783),
    Sketcher.Constraint("DistanceX", -1, 1, 33, 3, 115.076243),
    Sketcher.Constraint("DistanceY", 33, 3, -1, 1, 76.167304),
    Sketcher.Constraint("DistanceX", -1, 1, 36, 3, 105.878456),
    Sketcher.Constraint("DistanceX", -1, 1, 37, 3, 82.085545),
    Sketcher.Constraint("DistanceY", 37, 3, -1, 1, 110.932247),
    Sketcher.Constraint("DistanceX", -1, 1, 39, 3, 64.787076),
    Sketcher.Constraint("DistanceY", 39, 3, -1, 1, 121.846768),
])
pocket2 = doc.addObject("PartDesign::Pocket", "Pocket001")
body.addObject(pocket2)
pocket2.Profile = sketch3
pocket2.Length = 2

sketch4 = doc.addObject("Sketcher::SketchObject", "Sketch003")
body.addObject(sketch4)
sketch4.AttachmentSupport = (doc.XY_Plane, [""])
sketch4.MapMode = "FlatFace"
sketch4.AttachmentOffset = App.Placement(V(0, 0, 2), App.Rotation())
sketch4.addGeometry([
    Part.LineSegment(V(37.979473, 50.217622, 0), V(62.479473, 7.782378, 0)),
    Part.LineSegment(V(62.479473, 7.782378, 0), V(87.24875, 22.082926, 0)),
    Part.ArcOfCircle(Part.Circle(V(0, 0, 0), V(0, 0, 1), 90), math.radians(14.203455), math.radians(45.796545)),
    Part.LineSegment(V(62.74875, 64.518171, 0), V(37.979473, 50.217622, 0)),
    Part.LineSegment(V(-24.5, 58, 0), V(24.5, 58, 0)),
    Part.LineSegment(V(24.5, 58, 0), V(24.5, 86.601097, 0)),
    Part.ArcOfCircle(Part.Circle(V(0, 0, 0), V(0, 0, 1), 90), math.radians(74.203455), math.radians(105.796545)),
    Part.LineSegment(V(-24.5, 86.601097, 0), V(-24.5, 58, 0)),
    Part.LineSegment(V(62.479473, -7.782378, 0), V(37.979473, -50.217622, 0)),
    Part.LineSegment(V(37.979473, -50.217622, 0), V(62.74875, -64.518171, 0)),
    Part.ArcOfCircle(Part.Circle(V(0, 0, 0), V(0, 0, 1), 90), math.radians(-45.796545), math.radians(-14.203455)),
    Part.LineSegment(V(87.24875, -22.082926, 0), V(62.479473, -7.782378, 0)),
    Part.LineSegment(V(24.5, -58, 0), V(-24.5, -58, 0)),
    Part.LineSegment(V(-24.5, -58, 0), V(-24.5, -86.601097, 0)),
    Part.ArcOfCircle(Part.Circle(V(0, 0, 0), V(0, 0, 1), 90), math.radians(-105.796545), math.radians(-74.203455)),
    Part.LineSegment(V(24.5, -86.601097, 0), V(24.5, -58, 0)),
    Part.LineSegment(V(-37.979473, -50.217622, 0), V(-62.479473, -7.782378, 0)),
    Part.LineSegment(V(-62.479473, -7.782378, 0), V(-87.24875, -22.082926, 0)),
    Part.ArcOfCircle(Part.Circle(V(0, 0, 0), V(0, 0, 1), 90), math.radians(-165.796545), math.radians(-134.203455)),
    Part.LineSegment(V(-62.74875, -64.518171, 0), V(-37.979473, -50.217622, 0)),
    Part.LineSegment(V(-62.479473, 7.782378, 0), V(-37.979473, 50.217622, 0)),
    Part.LineSegment(V(-37.979473, 50.217622, 0), V(-62.74875, 64.518171, 0)),
    Part.ArcOfCircle(Part.Circle(V(0, 0, 0), V(0, 0, 1), 90), math.radians(134.203455), math.radians(165.796545)),
    Part.LineSegment(V(-87.24875, 22.082926, 0), V(-62.479473, 7.782378, 0)),
], False)
sketch4.addConstraint([
    Sketcher.Constraint("Coincident", 0, 2, 1, 1),
    Sketcher.Constraint("Coincident", 1, 2, 2, 1),
    Sketcher.Constraint("Coincident", 2, 2, 3, 1),
    Sketcher.Constraint("Coincident", 3, 2, 0, 1),
    Sketcher.Constraint("Coincident", 4, 2, 5, 1),
    Sketcher.Constraint("Coincident", 5, 2, 6, 1),
    Sketcher.Constraint("Coincident", 6, 2, 7, 1),
    Sketcher.Constraint("Coincident", 7, 2, 4, 1),
    Sketcher.Constraint("Coincident", 8, 2, 9, 1),
    Sketcher.Constraint("Coincident", 9, 2, 10, 1),
    Sketcher.Constraint("Coincident", 10, 2, 11, 1),
    Sketcher.Constraint("Coincident", 11, 2, 8, 1),
    Sketcher.Constraint("Coincident", 12, 2, 13, 1),
    Sketcher.Constraint("Coincident", 13, 2, 14, 1),
    Sketcher.Constraint("Coincident", 14, 2, 15, 1),
    Sketcher.Constraint("Coincident", 15, 2, 12, 1),
    Sketcher.Constraint("Coincident", 16, 2, 17, 1),
    Sketcher.Constraint("Coincident", 17, 2, 18, 1),
    Sketcher.Constraint("Coincident", 18, 2, 19, 1),
    Sketcher.Constraint("Coincident", 19, 2, 16, 1),
    Sketcher.Constraint("Coincident", 20, 2, 21, 1),
    Sketcher.Constraint("Coincident", 21, 2, 22, 1),
    Sketcher.Constraint("Coincident", 22, 2, 23, 1),
    Sketcher.Constraint("Coincident", 23, 2, 20, 1),
    Sketcher.Constraint("Horizontal", 4),
    Sketcher.Constraint("Vertical", 5),
    Sketcher.Constraint("Vertical", 7),
    Sketcher.Constraint("Horizontal", 12),
    Sketcher.Constraint("Vertical", 13),
    Sketcher.Constraint("Vertical", 15),
    Sketcher.Constraint("Coincident", 2, 3, -1, 1),
    Sketcher.Constraint("Coincident", 6, 3, -1, 1),
    Sketcher.Constraint("Coincident", 10, 3, -1, 1),
    Sketcher.Constraint("Coincident", 14, 3, -1, 1),
    Sketcher.Constraint("Coincident", 18, 3, -1, 1),
    Sketcher.Constraint("Coincident", 22, 3, -1, 1),
    Sketcher.Constraint("Equal", 2, 6),
    Sketcher.Constraint("Equal", 6, 10),
    Sketcher.Constraint("Equal", 10, 14),
    Sketcher.Constraint("Equal", 14, 18),
    Sketcher.Constraint("Equal", 18, 22),
    Sketcher.Constraint("Symmetric", 4, 2, 12, 2, -1, 1),
    Sketcher.Constraint("Symmetric", 0, 2, 16, 2, -1, 1),
    Sketcher.Constraint("Symmetric", 3, 2, 19, 2, -1, 1),
    Sketcher.Constraint("Symmetric", 8, 2, 20, 2, -1, 1),
    Sketcher.Constraint("Symmetric", 11, 2, 23, 2, -1, 1),
    Sketcher.Constraint("Symmetric", 11, 2, 16, 2, -2),
    Sketcher.Constraint("Symmetric", 8, 2, 19, 2, -2),
    Sketcher.Constraint("Perpendicular", 0, 1),
    Sketcher.Constraint("Parallel", 1, 3),
    Sketcher.Constraint("Perpendicular", 8, 9),
    Sketcher.Constraint("Parallel", 9, 11),
    Sketcher.Constraint("Perpendicular", 16, 17),
    Sketcher.Constraint("Parallel", 17, 19),
    Sketcher.Constraint("Perpendicular", 20, 21),
    Sketcher.Constraint("Parallel", 21, 23),
    Sketcher.Constraint("Horizontal", 5, 2, 6, 2),
    Sketcher.Constraint("Horizontal", 13, 2, 14, 2),
    Sketcher.Constraint("Equal", 1, 3),
    Sketcher.Constraint("Radius", 2, 90.0),
    Sketcher.Constraint("DistanceX", 4, 1, 4, 2, 49.0),
    Sketcher.Constraint("Angle", 0, Q("-60 deg")),
    Sketcher.Constraint("Distance", 0, 49.0),
    Sketcher.Constraint("DistanceY", -1, 1, 4, 2, 58.0),
    Sketcher.Constraint("DistanceY", 8, 2, 0, 2, 58.0),
])
pocket3 = doc.addObject("PartDesign::Pocket", "Pocket002")
body.addObject(pocket3)
pocket3.Profile = sketch4
pocket3.Length = 2

sketch5 = doc.addObject("Sketcher::SketchObject", "Sketch004")
body.addObject(sketch5)
sketch5.AttachmentSupport = (doc.XY_Plane, [""])
sketch5.MapMode = "FlatFace"
sketch5.AttachmentOffset = App.Placement(V(0, 0, 2), App.Rotation())
sketch5.addGeometry([
    Part.Circle(V(43, 74.478185, 0), V(0, 0, 1), 3.25),
    Part.Circle(V(86, 0, 0), V(0, 0, 1), 3.25),
    Part.Circle(V(43, -74.478185, 0), V(0, 0, 1), 3.25),
    Part.Circle(V(-43, -74.478185, 0), V(0, 0, 1), 3.25),
    Part.Circle(V(-86, 0, 0), V(0, 0, 1), 3.25),
    Part.Circle(V(-43, 74.478185, 0), V(0, 0, 1), 3.25),
], False)
sketch5.addConstraint([
    Sketcher.Constraint("Equal", 0, 1),
    Sketcher.Constraint("Equal", 1, 2),
    Sketcher.Constraint("Equal", 2, 3),
    Sketcher.Constraint("Equal", 3, 4),
    Sketcher.Constraint("Equal", 4, 5),
    Sketcher.Constraint("Symmetric", 0, 3, 3, 3, -1, 1),
    Sketcher.Constraint("Symmetric", 1, 3, 4, 3, -1, 1),
    Sketcher.Constraint("Symmetric", 2, 3, 5, 3, -1, 1),
    Sketcher.Constraint("Symmetric", 2, 3, 3, 3, -2),
    Sketcher.Constraint("PointOnObject", 1, 3, -1),
    Sketcher.Constraint("Diameter", 0, 6.5),
    Sketcher.Constraint("DistanceX", -1, 1, 0, 3, 43.0),
    Sketcher.Constraint("DistanceX", -1, 1, 1, 3, 86.0),
    Sketcher.Constraint("DistanceY", 2, 3, 0, 3, 148.956369),
])
pocket4 = doc.addObject("PartDesign::Pocket", "Pocket003")
body.addObject(pocket4)
pocket4.Profile = sketch5
pocket4.Length = 2
doc.recompute()

fillet = doc.addObject("PartDesign::Fillet", "Fillet")
body.addObject(fillet)
fillet.Base = (pocket4, edges_at(pocket4, [
    (37.979, 50.218, 1),
    (62.749, 64.518, 1),
    (87.249, 22.083, 1),
    (62.479, 7.782, 1),
    (-24.5, 58, 1),
    (-24.5, 86.601, 1),
    (24.5, 86.601, 1),
    (24.5, 58, 1),
    (62.479, -7.782, 1),
    (87.249, -22.083, 1),
    (62.749, -64.518, 1),
    (37.979, -50.218, 1),
    (24.5, -58, 1),
    (24.5, -86.601, 1),
    (-24.5, -86.601, 1),
    (-24.5, -58, 1),
    (-37.979, -50.218, 1),
    (-62.749, -64.518, 1),
    (-87.249, -22.083, 1),
    (-62.479, -7.782, 1),
    (-62.479, 7.782, 1),
    (-87.249, 22.083, 1),
    (-62.749, 64.518, 1),
    (-37.979, 50.218, 1),
]))
fillet.Radius = 1

doc.recompute()
